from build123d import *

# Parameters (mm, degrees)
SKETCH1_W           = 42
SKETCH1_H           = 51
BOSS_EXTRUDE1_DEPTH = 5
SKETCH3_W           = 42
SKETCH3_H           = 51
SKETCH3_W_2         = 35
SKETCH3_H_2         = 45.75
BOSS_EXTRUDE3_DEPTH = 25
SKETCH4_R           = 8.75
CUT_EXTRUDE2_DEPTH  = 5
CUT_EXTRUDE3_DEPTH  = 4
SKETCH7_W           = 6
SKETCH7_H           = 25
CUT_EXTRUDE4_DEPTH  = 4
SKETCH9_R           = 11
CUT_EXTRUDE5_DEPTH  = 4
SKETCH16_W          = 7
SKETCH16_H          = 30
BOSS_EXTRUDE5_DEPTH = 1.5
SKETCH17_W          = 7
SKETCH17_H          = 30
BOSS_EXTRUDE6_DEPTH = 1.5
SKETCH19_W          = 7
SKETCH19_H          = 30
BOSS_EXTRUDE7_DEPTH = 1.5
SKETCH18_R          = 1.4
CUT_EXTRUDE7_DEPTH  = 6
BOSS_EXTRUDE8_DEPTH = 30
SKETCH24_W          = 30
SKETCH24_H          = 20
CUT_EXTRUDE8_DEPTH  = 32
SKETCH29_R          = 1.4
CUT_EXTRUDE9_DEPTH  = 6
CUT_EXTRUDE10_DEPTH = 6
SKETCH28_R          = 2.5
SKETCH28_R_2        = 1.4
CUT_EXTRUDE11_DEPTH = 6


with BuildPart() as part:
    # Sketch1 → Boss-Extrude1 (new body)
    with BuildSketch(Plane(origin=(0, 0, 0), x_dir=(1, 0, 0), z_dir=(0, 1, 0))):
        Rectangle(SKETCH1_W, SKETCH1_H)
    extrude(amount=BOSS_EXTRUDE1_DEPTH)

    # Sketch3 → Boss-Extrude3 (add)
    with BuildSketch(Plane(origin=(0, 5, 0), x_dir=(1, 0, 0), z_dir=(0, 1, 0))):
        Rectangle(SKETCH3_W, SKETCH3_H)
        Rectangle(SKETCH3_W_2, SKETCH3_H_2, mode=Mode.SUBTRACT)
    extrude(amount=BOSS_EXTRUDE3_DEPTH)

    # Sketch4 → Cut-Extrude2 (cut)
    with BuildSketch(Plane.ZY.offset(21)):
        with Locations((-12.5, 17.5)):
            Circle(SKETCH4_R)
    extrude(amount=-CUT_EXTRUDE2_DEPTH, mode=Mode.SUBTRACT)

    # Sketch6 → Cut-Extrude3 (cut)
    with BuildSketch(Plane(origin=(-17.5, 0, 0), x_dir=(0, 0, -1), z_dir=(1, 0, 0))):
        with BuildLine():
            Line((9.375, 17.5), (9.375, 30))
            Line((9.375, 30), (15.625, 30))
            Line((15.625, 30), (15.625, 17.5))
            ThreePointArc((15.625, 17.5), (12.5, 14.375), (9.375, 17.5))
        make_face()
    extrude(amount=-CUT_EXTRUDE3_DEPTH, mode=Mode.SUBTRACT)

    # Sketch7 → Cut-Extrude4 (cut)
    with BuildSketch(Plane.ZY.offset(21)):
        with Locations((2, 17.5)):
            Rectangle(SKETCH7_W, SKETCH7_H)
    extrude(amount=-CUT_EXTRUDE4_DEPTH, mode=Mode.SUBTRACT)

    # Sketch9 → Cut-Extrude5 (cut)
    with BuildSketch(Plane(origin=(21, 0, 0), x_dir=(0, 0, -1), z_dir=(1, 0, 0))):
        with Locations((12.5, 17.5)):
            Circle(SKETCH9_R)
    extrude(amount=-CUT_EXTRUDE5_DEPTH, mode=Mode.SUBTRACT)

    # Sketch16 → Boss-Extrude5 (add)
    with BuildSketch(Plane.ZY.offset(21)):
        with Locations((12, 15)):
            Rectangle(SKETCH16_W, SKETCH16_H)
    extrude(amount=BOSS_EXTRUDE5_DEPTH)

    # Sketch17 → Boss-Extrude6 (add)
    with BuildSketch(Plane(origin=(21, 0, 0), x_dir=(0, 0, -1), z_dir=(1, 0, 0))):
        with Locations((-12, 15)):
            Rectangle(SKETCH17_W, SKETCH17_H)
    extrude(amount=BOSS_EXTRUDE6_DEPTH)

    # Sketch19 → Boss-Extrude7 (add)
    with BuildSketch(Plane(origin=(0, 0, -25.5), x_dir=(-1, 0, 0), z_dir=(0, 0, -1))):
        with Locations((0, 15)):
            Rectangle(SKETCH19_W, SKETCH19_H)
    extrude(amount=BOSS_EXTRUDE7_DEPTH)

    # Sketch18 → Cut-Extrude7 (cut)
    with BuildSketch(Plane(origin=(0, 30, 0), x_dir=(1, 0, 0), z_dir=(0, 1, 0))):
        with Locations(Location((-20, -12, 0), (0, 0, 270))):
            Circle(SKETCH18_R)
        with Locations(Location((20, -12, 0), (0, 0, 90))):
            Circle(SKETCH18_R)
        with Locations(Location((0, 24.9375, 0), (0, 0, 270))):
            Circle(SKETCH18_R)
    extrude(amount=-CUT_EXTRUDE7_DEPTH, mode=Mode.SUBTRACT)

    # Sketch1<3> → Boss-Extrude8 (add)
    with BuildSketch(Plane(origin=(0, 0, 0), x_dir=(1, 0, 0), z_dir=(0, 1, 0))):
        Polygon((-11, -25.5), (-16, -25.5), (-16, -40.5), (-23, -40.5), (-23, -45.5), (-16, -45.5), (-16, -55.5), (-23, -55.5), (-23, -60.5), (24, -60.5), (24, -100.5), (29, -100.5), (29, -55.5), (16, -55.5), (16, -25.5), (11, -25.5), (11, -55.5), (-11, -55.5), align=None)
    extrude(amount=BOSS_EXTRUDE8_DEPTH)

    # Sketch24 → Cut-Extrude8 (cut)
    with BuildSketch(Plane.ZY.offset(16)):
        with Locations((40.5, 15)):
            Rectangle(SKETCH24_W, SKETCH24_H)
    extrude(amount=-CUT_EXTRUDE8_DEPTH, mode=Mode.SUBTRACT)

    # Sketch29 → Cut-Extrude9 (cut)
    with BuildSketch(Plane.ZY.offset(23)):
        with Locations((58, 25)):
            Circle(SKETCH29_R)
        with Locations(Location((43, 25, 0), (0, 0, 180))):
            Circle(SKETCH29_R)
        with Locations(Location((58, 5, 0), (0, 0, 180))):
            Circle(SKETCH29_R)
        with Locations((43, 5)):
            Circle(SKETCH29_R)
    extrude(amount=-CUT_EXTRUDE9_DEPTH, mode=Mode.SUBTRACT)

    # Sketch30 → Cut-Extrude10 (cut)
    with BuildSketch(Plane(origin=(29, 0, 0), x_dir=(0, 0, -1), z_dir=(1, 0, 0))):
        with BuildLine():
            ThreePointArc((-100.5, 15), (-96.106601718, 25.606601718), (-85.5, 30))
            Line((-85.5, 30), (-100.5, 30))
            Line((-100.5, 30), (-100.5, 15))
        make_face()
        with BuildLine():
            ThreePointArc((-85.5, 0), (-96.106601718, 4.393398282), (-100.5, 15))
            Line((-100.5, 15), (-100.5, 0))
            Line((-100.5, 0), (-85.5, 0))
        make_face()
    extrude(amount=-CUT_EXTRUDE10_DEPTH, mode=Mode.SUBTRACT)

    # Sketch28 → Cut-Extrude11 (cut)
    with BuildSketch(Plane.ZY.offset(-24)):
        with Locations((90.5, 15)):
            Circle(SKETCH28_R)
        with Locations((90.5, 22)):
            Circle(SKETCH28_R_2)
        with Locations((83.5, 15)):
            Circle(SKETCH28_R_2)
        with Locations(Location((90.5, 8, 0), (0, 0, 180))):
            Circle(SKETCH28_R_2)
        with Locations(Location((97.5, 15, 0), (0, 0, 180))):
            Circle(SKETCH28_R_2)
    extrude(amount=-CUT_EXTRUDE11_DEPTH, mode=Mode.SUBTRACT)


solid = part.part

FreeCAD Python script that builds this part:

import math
import FreeCAD as App
import Part
import Sketcher

V = App.Vector


def add_polygon(sketch, points):
    """Adds a closed chain of lines whose ends are joined by coincident constraints."""
    first, n = sketch.GeometryCount, len(points)
    for a, b in zip(points, points[1:] + points[:1]):
        sketch.addGeometry(Part.LineSegment(App.Vector(*a, 0), App.Vector(*b, 0)), False)
    for i in range(n):
        sketch.addConstraint(Sketcher.Constraint("Coincident", first + i, 2, first + (i + 1) % n, 1))

doc = App.newDocument("Part")
body = doc.addObject("PartDesign::Body", "Body")

# Sketch on XZ plane
sketch1 = body.newObject("Sketcher::SketchObject", "Sketch")
sketch1.AttachmentSupport = (doc.getObject("XZ_Plane"), [""])
sketch1.MapMode = "FlatFace"
add_polygon(sketch1, [(-21, -26), (-21, 26), (21, 26), (21, -26)])  # lines 0-3
sketch1.addConstraint(Sketcher.Constraint("Vertical", 0))
sketch1.addConstraint(Sketcher.Constraint("Horizontal", 1))
sketch1.addConstraint(Sketcher.Constraint("Vertical", 2))
sketch1.addConstraint(Sketcher.Constraint("Horizontal", 3))
sketch1.addConstraint(Sketcher.Constraint("Symmetric", 0, 2, 2, 2, -1, 1))
sketch1.addConstraint(Sketcher.Constraint("DistanceX", 1, 1, 1, 2, 42.0))
sketch1.addConstraint(Sketcher.Constraint("DistanceY", 0, 1, 0, 2, 51.0))
pad1 = body.newObject("PartDesign::Pad", "Pad")
pad1.Profile = sketch1
pad1.Length = 5
pad1.Reversed = True

# Sketch on XZ plane
sketch2 = body.newObject("Sketcher::SketchObject", "Sketch001")
sketch2.AttachmentSupport = (doc.getObject("XZ_Plane"), [""])
sketch2.MapMode = "FlatFace"
sketch2.AttachmentOffset = App.Placement(V(0, 0, -5), App.Rotation())
add_polygon(sketch2, [(-21, -26), (-21, 26), (21, 26), (21, -26)])  # lines 0-3
add_polygon(sketch2, [(18, 23), (-18, 23), (-18, -23), (18, -23)])  # lines 4-7
sketch2.addConstraint(Sketcher.Constraint("Vertical", 0))
sketch2.addConstraint(Sketcher.Constraint("Horizontal", 1))
sketch2.addConstraint(Sketcher.Constraint("Vertical", 2))
sketch2.addConstraint(Sketcher.Constraint("Horizontal", 3))
sketch2.addConstraint(Sketcher.Constraint("Horizontal", 4))
sketch2.addConstraint(Sketcher.Constraint("Vertical", 5))
sketch2.addConstraint(Sketcher.Constraint("Horizontal", 6))
sketch2.addConstraint(Sketcher.Constraint("Vertical", 7))
sketch2.addConstraint(Sketcher.Constraint("Symmetric", 0, 2, 2, 2, -1, 1))
sketch2.addConstraint(Sketcher.Constraint("Symmetric", 4, 2, 6, 2, -1, 1))
sketch2.addConstraint(Sketcher.Constraint("DistanceX", 1, 1, 1, 2, 42.0))
sketch2.addConstraint(Sketcher.Constraint("DistanceX", 4, 2, 4, 1, 35.0))
sketch2.addConstraint(Sketcher.Constraint("DistanceY", 0, 1, 0, 2, 51.0))
sketch2.addConstraint(Sketcher.Constraint("DistanceY", 5, 2, 5, 1, 45.75))
pad2 = body.newObject("PartDesign::Pad", "Pad001")
pad2.Profile = sketch2
pad2.Length = 25
pad2.Reversed = True

# Sketch on YZ plane
sketch3 = body.newObject("Sketcher::SketchObject", "Sketch002")
sketch3.AttachmentSupport = (doc.getObject("YZ_Plane"), [""])
sketch3.MapMode = "FlatFace"
sketch3.AttachmentOffset = App.Placement(V(0, 0, -21), App.Rotation())
sketch3.addGeometry(Part.Circle(V(18, -12, 0), V(0, 0, 1), 9), False)
sketch3.addConstraint(Sketcher.Constraint("Diameter", 0, 17.5))
sketch3.addConstraint(Sketcher.Constraint("DistanceX", -1, 1, 0, 3, 17.5))
sketch3.addConstraint(Sketcher.Constraint("DistanceY", 0, 3, -1, 1, 12.5))
pocket1 = body.newObject("PartDesign::Pocket", "Pocket")
pocket1.Profile = sketch3
pocket1.Length = 5
pocket1.Reversed = True

# Sketch on YZ plane
sketch4 = body.newObject("Sketcher::SketchObject", "Sketch003")
sketch4.AttachmentSupport = (doc.getObject("YZ_Plane"), [""])
sketch4.MapMode = "FlatFace"
sketch4.AttachmentOffset = App.Placement(V(0, 0, -17.5), App.Rotation())
sketch4.addGeometry(Part.LineSegment(V(30, -9.4, 0), V(17.5, -9.4, 0)), False)
sketch4.addGeometry(Part.ArcOfCircle(Part.Circle(V(17.5, -12.5, 0), V(0, 0, 1), 3.1), math.radians(90), math.radians(270)), False)
sketch4.addGeometry(Part.LineSegment(V(17.5, -15.6, 0), V(30, -15.6, 0)), False)
sketch4.addGeometry(Part.LineSegment(V(30, -15.6, 0), V(30, -9.4, 0)), False)
sketch4.addConstraint(Sketcher.Constraint("Tangent", 0, 2, 1, 1))
sketch4.addConstraint(Sketcher.Constraint("Tangent", 1, 2, 2, 1))
sketch4.addConstraint(Sketcher.Constraint("Coincident", 2, 2, 3, 1))
sketch4.addConstraint(Sketcher.Constraint("Coincident", 3, 2, 0, 1))
sketch4.addConstraint(Sketcher.Constraint("Horizontal", 0))
sketch4.addConstraint(Sketcher.Constraint("Horizontal", 2))
sketch4.addConstraint(Sketcher.Constraint("Vertical", 3))
sketch4.addConstraint(Sketcher.Constraint("DistanceX", 0, 2, 0, 1, 12.5))
sketch4.addConstraint(Sketcher.Constraint("DistanceX", -1, 1, 2, 2, 30.0))
sketch4.addConstraint(Sketcher.Constraint("Radius", 1, 3.125))
sketch4.addConstraint(Sketcher.Constraint("DistanceY", 1, 3, -1, 1, 12.5))
pocket2 = body.newObject("PartDesign::Pocket", "Pocket001")
pocket2.Profile = sketch4
pocket2.Length = 4

# Sketch on YZ plane
sketch5 = body.newObject("Sketcher::SketchObject", "Sketch004")
sketch5.AttachmentSupport = (doc.getObject("YZ_Plane"), [""])
sketch5.MapMode = "FlatFace"
sketch5.AttachmentOffset = App.Placement(V(0, 0, -21), App.Rotation())
add_polygon(sketch5, [(30, -1), (5, -1), (5, 5), (30, 5)])  # lines 0-3
sketch5.addConstraint(Sketcher.Constraint("Horizontal", 0))
sketch5.addConstraint(Sketcher.Constraint("Vertical", 1))
sketch5.addConstraint(Sketcher.Constraint("Horizontal", 2))
sketch5.addConstraint(Sketcher.Constraint("Vertical", 3))
sketch5.addConstraint(Sketcher.Constraint("DistanceX", 0, 2, 0, 1, 25.0))
sketch5.addConstraint(Sketcher.Constraint("DistanceY", 1, 1, 1, 2, 6.0))
sketch5.addConstraint(Sketcher.Constraint("DistanceX", -1, 1, 0, 2, 5.0))
sketch5.addConstraint(Sketcher.Constraint("DistanceY", 0, 2, -1, 1, 1.0))
pocket3 = body.newObject("PartDesign::Pocket", "Pocket002")
pocket3.Profile = sketch5
pocket3.Length = 4
pocket3.Reversed = True

# Sketch on YZ plane
sketch6 = body.newObject("Sketcher::SketchObject", "Sketch005")
sketch6.AttachmentSupport = (doc.getObject("YZ_Plane"), [""])
sketch6.MapMode = "FlatFace"
sketch6.AttachmentOffset = App.Placement(V(0, 0, 21), App.Rotation())
sketch6.addGeometry(Part.Circle(V(18, -12, 0), V(0, 0, 1), 11), False)
sketch6.addConstraint(Sketcher.Constraint("Diameter", 0, 22.0))
sketch6.addConstraint(Sketcher.Constraint("DistanceX", -1, 1, 0, 3, 17.5))
sketch6.addConstraint(Sketcher.Constraint("DistanceY", 0, 3, -1, 1, 12.5))
pocket4 = body.newObject("PartDesign::Pocket", "Pocket003")
pocket4.Profile = sketch6
pocket4.Length = 4

# Sketch on YZ plane
sketch7 = body.newObject("Sketcher::SketchObject", "Sketch006")
sketch7.AttachmentSupport = (doc.getObject("YZ_Plane"), [""])
sketch7.MapMode = "FlatFace"
sketch7.AttachmentOffset = App.Placement(V(0, 0, -21), App.Rotation())
add_polygon(sketch7, [(30, 8), (0, 8), (0, 16), (30, 16)])  # lines 0-3
sketch7.addConstraint(Sketcher.Constraint("Horizontal", 0))
sketch7.addConstraint(Sketcher.Constraint("Vertical", 1))
sketch7.addConstraint(Sketcher.Constraint("Horizontal", 2))
sketch7.addConstraint(Sketcher.Constraint("Vertical", 3))
sketch7.addConstraint(Sketcher.Constraint("PointOnObject", 0, 2, -2))
sketch7.addConstraint(Sketcher.Constraint("DistanceX", 0, 2, 0, 1, 30.0))
sketch7.addConstraint(Sketcher.Constraint("DistanceY", 1, 1, 1, 2, 7.0))
sketch7.addConstraint(Sketcher.Constraint("DistanceY", -1, 1, 0, 2, 8.5))
pad3 = body.newObject("PartDesign::Pad", "Pad002")
pad3.Profile = sketch7
pad3.Length = 1.5
pad3.Reversed = True

# Sketch on YZ plane
sketch8 = body.newObject("Sketcher::SketchObject", "Sketch007")
sketch8.AttachmentSupport = (doc.getObject("YZ_Plane"), [""])
sketch8.MapMode = "FlatFace"
sketch8.AttachmentOffset = App.Placement(V(0, 0, 21), App.Rotation())
add_polygon(sketch8, [(30, 16), (0, 16), (0, 8), (30, 8)])  # lines 0-3
sketch8.addConstraint(Sketcher.Constraint("Horizontal", 0))
sketch8.addConstraint(Sketcher.Constraint("Vertical", 1))
sketch8.addConstraint(Sketcher.Constraint("Horizontal", 2))
sketch8.addConstraint(Sketcher.Constraint("Vertical", 3))
sketch8.addConstraint(Sketcher.Constraint("PointOnObject", 0, 2, -2))
sketch8.addConstraint(Sketcher.Constraint("DistanceX", 0, 2, 0, 1, 30.0))
sketch8.addConstraint(Sketcher.Constraint("DistanceY", 1, 2, 1, 1, 7.0))
sketch8.addConstraint(Sketcher.Constraint("DistanceY", -1, 1, 0, 2, 15.5))
pad4 = body.newObject("PartDesign::Pad", "Pad003")
pad4.Profile = sketch8
pad4.Length = 1.5

# Sketch on XY plane
sketch9 = body.newObject("Sketcher::SketchObject", "Sketch008")
sketch9.AttachmentSupport = (doc.getObject("XY_Plane"), [""])
sketch9.MapMode = "FlatFace"
sketch9.AttachmentOffset = App.Placement(V(0, 0, -25.5), App.Rotation())
add_polygon(sketch9, [(4, 30), (4, 0), (-4, 0), (-4, 30)])  # lines 0-3
sketch9.addConstraint(Sketcher.Constraint("Vertical", 0))
sketch9.addConstraint(Sketcher.Constraint("Horizontal", 1))
sketch9.addConstraint(Sketcher.Constraint("Vertical", 2))
sketch9.addConstraint(Sketcher.Constraint("Horizontal", 3))
sketch9.addConstraint(Sketcher.Constraint("Symmetric", 0, 2, 1, 2, -1, 1))
sketch9.addConstraint(Sketcher.Constraint("DistanceX", 1, 2, 1, 1, 7.0))
sketch9.addConstraint(Sketcher.Constraint("DistanceY", 0, 2, 0, 1, 30.0))
pad5 = body.newObject("PartDesign::Pad", "Pad004")
pad5.Profile = sketch9
pad5.Length = 1.5
pad5.Reversed = True

# Sketch on XZ plane
sketch10 = body.newObject("Sketcher::SketchObject", "Sketch009")
sketch10.AttachmentSupport = (doc.getObject("XZ_Plane"), [""])
sketch10.MapMode = "FlatFace"
sketch10.AttachmentOffset = App.Placement(V(0, 0, -30), App.Rotation())
sketch10.addGeometry(Part.Circle(V(-20, 12, 0), V(0, 0, 1), 1.4), False)
sketch10.addGeometry(Part.Circle(V(20, 12, 0), V(0, 0, 1), 1.4), False)
sketch10.addGeometry(Part.Circle(V(0, -24.9, 0), V(0, 0, 1), 1.4), False)
sketch10.addConstraint(Sketcher.Constraint("Equal", 0, 1))
sketch10.addConstraint(Sketcher.Constraint("Equal", 1, 2))
sketch10.addConstraint(Sketcher.Constraint("Symmetric", 0, 3, 1, 3, -2))
sketch10.addConstraint(Sketcher.Constraint("PointOnObject", 2, 3, -2))
sketch10.addConstraint(Sketcher.Constraint("Diameter", 0, 2.8))
sketch10.addConstraint(Sketcher.Constraint("DistanceX", 0, 3, -1, 1, 20.0))
sketch10.addConstraint(Sketcher.Constraint("DistanceY", -1, 1, 0, 3, 12.0))
sketch10.addConstraint(Sketcher.Constraint("DistanceY", 2, 3, -1, 1, 24.9375))
pocket5 = body.newObject("PartDesign::Pocket", "Pocket004")
pocket5.Profile = sketch10
pocket5.Length = 6
pocket5.Reversed = True

# Sketch on XZ plane
sketch11 = body.newObject("Sketcher::SketchObject", "Sketch010")
sketch11.AttachmentSupport = (doc.getObject("XZ_Plane"), [""])
sketch11.MapMode = "FlatFace"
add_polygon(sketch11, [(-11, 26), (-16, 26), (-16, 40), (-23, 40), (-23, 46), (-16, 46), (-16, 56), (-23, 56), (-23, 60), (24, 60), (24, 100), (29, 100), (29, 56), (16, 56), (16, 26), (11, 26), (11, 56), (-11, 56)])  # lines 0-17
sketch11.addConstraint(Sketcher.Constraint("Horizontal", 0))
sketch11.addConstraint(Sketcher.Constraint("Vertical", 1))
sketch11.addConstraint(Sketcher.Constraint("Horizontal", 2))
sketch11.addConstraint(Sketcher.Constraint("Vertical", 3))
sketch11.addConstraint(Sketcher.Constraint("Horizontal", 4))
sketch11.addConstraint(Sketcher.Constraint("Vertical", 5))
sketch11.addConstraint(Sketcher.Constraint("Horizontal", 6))
sketch11.addConstraint(Sketcher.Constraint("Vertical", 7))
sketch11.addConstraint(Sketcher.Constraint("Horizontal", 8))
sketch11.addConstraint(Sketcher.Constraint("Vertical", 9))
sketch11.addConstraint(Sketcher.Constraint("Horizontal", 10))
sketch11.addConstraint(Sketcher.Constraint("Vertical", 11))
sketch11.addConstraint(Sketcher.Constraint("Horizontal", 12))
sketch11.addConstraint(Sketcher.Constraint("Vertical", 13))
sketch11.addConstraint(Sketcher.Constraint("Horizontal", 14))
sketch11.addConstraint(Sketcher.Constraint("Vertical", 15))
sketch11.addConstraint(Sketcher.Constraint("Horizontal", 16))
sketch11.addConstraint(Sketcher.Constraint("Vertical", 17))
sketch11.addConstraint(Sketcher.Constraint("Symmetric", 5, 2, 12, 2, -2))
sketch11.addConstraint(Sketcher.Constraint("Symmetric", 0, 2, 13, 2, -2))
sketch11.addConstraint(Sketcher.Constraint("Horizontal", 12, 2, 15, 2))
sketch11.addConstraint(Sketcher.Constraint("Vertical", 3, 2, 6, 2))
sketch11.addConstraint(Sketcher.Constraint("Equal", 0, 10))
sketch11.addConstraint(Sketcher.Constraint("Equal", 10, 14))
sketch11.addConstraint(Sketcher.Constraint("Equal", 14, 3))
sketch11.addConstraint(Sketcher.Constraint("Equal", 3, 7))
sketch11.addConstraint(Sketcher.Constraint("DistanceX", 0, 2, 0, 1, 5.0))
sketch11.addConstraint(Sketcher.Constraint("DistanceX", 2, 2, 2, 1, 7.0))
sketch11.addConstraint(Sketcher.Constraint("DistanceX", 8, 1, 8, 2, 47.0))
sketch11.addConstraint(Sketcher.Constraint("DistanceX", 12, 2, 12, 1, 13.0))
sketch11.addConstraint(Sketcher.Constraint("DistanceY", 1, 1, 1, 2, 15.0))
sketch11.addConstraint(Sketcher.Constraint("DistanceY", 5, 1, 5, 2, 10.0))
sketch11.addConstraint(Sketcher.Constraint("DistanceY", 9, 1, 9, 2, 40.0))
sketch11.addConstraint(Sketcher.Constraint("DistanceY", -1, 1, 0, 2, 25.5))
pad6 = body.newObject("PartDesign::Pad", "Pad005")
pad6.Profile = sketch11
pad6.Length = 30
pad6.Reversed = True

# Sketch on YZ plane
sketch12 = body.newObject("Sketcher::SketchObject", "Sketch011")
sketch12.AttachmentSupport = (doc.getObject("YZ_Plane"), [""])
sketch12.MapMode = "FlatFace"
sketch12.AttachmentOffset = App.Placement(V(0, 0, -16), App.Rotation())
add_polygon(sketch12, [(25, 26), (5, 26), (5, 56), (25, 56)])  # lines 0-3
sketch12.addConstraint(Sketcher.Constraint("Horizontal", 0))
sketch12.addConstraint(Sketcher.Constraint("Vertical", 1))
sketch12.addConstraint(Sketcher.Constraint("Horizontal", 2))
sketch12.addConstraint(Sketcher.Constraint("Vertical", 3))
sketch12.addConstraint(Sketcher.Constraint("DistanceX", 0, 2, 0, 1, 20.0))
sketch12.addConstraint(Sketcher.Constraint("DistanceY", 1, 1, 1, 2, 30.0))
sketch12.addConstraint(Sketcher.Constraint("DistanceX", -1, 1, 0, 2, 5.0))
sketch12.addConstraint(Sketcher.Constraint("DistanceY", -1, 1, 0, 2, 25.5))
pocket6 = body.newObject("PartDesign::Pocket", "Pocket005")
pocket6.Profile = sketch12
pocket6.Length = 32
pocket6.Reversed = True

# Sketch on YZ plane
sketch13 = body.newObject("Sketcher::SketchObject", "Sketch012")
sketch13.AttachmentSupport = (doc.getObject("YZ_Plane"), [""])
sketch13.MapMode = "FlatFace"
sketch13.AttachmentOffset = App.Placement(V(0, 0, -23), App.Rotation())
sketch13.addGeometry(Part.Circle(V(25, 58, 0), V(0, 0, 1), 1.4), False)
sketch13.addGeometry(Part.Circle(V(25, 43, 0), V(0, 0, 1), 1.4), False)
sketch13.addGeometry(Part.Circle(V(5, 58, 0), V(0, 0, 1), 1.4), False)
sketch13.addGeometry(Part.Circle(V(5, 43, 0), V(0, 0, 1), 1.4), False)
sketch13.addConstraint(Sketcher.Constraint("Equal", 0, 1))
sketch13.addConstraint(Sketcher.Constraint("Equal", 1, 2))
sketch13.addConstraint(Sketcher.Constraint("Equal", 2, 3))
sketch13.addConstraint(Sketcher.Constraint("Horizontal", 0, 3, 2, 3))
sketch13.addConstraint(Sketcher.Constraint("Horizontal", 1, 3, 3, 3))
sketch13.addConstraint(Sketcher.Constraint("Vertical", 0, 3, 1, 3))
sketch13.addConstraint(Sketcher.Constraint("Vertical", 2, 3, 3, 3))
sketch13.addConstraint(Sketcher.Constraint("Diameter", 0, 2.8))
sketch13.addConstraint(Sketcher.Constraint("DistanceX", -1, 1, 0, 3, 25.0))
sketch13.addConstraint(Sketcher.Constraint("DistanceY", -1, 1, 0, 3, 58.0))
sketch13.addConstraint(Sketcher.Constraint("DistanceY", -1, 1, 1, 3, 43.0))
sketch13.addConstraint(Sketcher.Constraint("DistanceX", -1, 1, 2, 3, 5.0))
pocket7 = body.newObject("PartDesign::Pocket", "Pocket006")
pocket7.Profile = sketch13
pocket7.Length = 6
pocket7.Reversed = True

# Sketch on YZ plane
sketch14 = body.newObject("Sketcher::SketchObject", "Sketch013")
sketch14.AttachmentSupport = (doc.getObject("YZ_Plane"), [""])
sketch14.MapMode = "FlatFace"
sketch14.AttachmentOffset = App.Placement(V(0, 0, 29), App.Rotation())
sketch14.addGeometry(Part.ArcOfCircle(Part.Circle(V(15, 86, 0), V(0, 0, 1), 15), math.radians(0), math.radians(90)), False)
sketch14.addGeometry(Part.LineSegment(V(30, 86, 0), V(30, 100, 0)), False)
sketch14.addGeometry(Part.LineSegment(V(30, 100, 0), V(15, 100, 0)), False)
sketch14.addGeometry(Part.ArcOfCircle(Part.Circle(V(15, 86, 0), V(0, 0, 1), 15), math.radians(90), math.radians(180)), False)
sketch14.addGeometry(Part.LineSegment(V(15, 100, 0), V(0, 100, 0)), False)
sketch14.addGeometry(Part.LineSegment(V(0, 100, 0), V(0, 86, 0)), False)
sketch14.addConstraint(Sketcher.Constraint("Tangent", 0, 1, 1, 1))
sketch14.addConstraint(Sketcher.Constraint("Coincident", 1, 2, 2, 1))
sketch14.addConstraint(Sketcher.Constraint("Tangent", 2, 2, 0, 2))
sketch14.addConstraint(Sketcher.Constraint("Tangent", 3, 1, 4, 1))
sketch14.addConstraint(Sketcher.Constraint("Coincident", 4, 2, 5, 1))
sketch14.addConstraint(Sketcher.Constraint("Tangent", 5, 2, 3, 2))
sketch14.addConstraint(Sketcher.Constraint("Vertical", 1))
sketch14.addConstraint(Sketcher.Constraint("Horizontal", 2))
sketch14.addConstraint(Sketcher.Constraint("Horizontal", 4))
sketch14.addConstraint(Sketcher.Constraint("Vertical", 5))
sketch14.addConstraint(Sketcher.Constraint("Coincident", 3, 3, 0, 3))
sketch14.addConstraint(Sketcher.Constraint("Equal", 0, 3))
sketch14.addConstraint(Sketcher.Constraint("PointOnObject", 4, 2, -2))
sketch14.addConstraint(Sketcher.Constraint("Radius", 0, 15.0))
sketch14.addConstraint(Sketcher.Constraint("DistanceY", -1, 1, 0, 3, 85.5))
pocket8 = body.newObject("PartDesign::Pocket", "Pocket007")
pocket8.Profile = sketch14
pocket8.Length = 6

# Sketch on YZ plane
sketch15 = body.newObject("Sketcher::SketchObject", "Sketch014")
sketch15.AttachmentSupport = (doc.getObject("YZ_Plane"), [""])
sketch15.MapMode = "FlatFace"
sketch15.AttachmentOffset = App.Placement(V(0, 0, 24), App.Rotation())
sketch15.addGeometry(Part.Circle(V(15, 90.5, 0), V(0, 0, 1), 2.5), False)
sketch15.addGeometry(Part.Circle(V(22, 90.5, 0), V(0, 0, 1), 1.4), False)
sketch15.addGeometry(Part.Circle(V(15, 83.5, 0), V(0, 0, 1), 1.4), False)
sketch15.addGeometry(Part.Circle(V(8, 90.5, 0), V(0, 0, 1), 1.4), False)
sketch15.addGeometry(Part.Circle(V(15, 97.5, 0), V(0, 0, 1), 1.4), False)
sketch15.addConstraint(Sketcher.Constraint("Equal", 1, 2))
sketch15.addConstraint(Sketcher.Constraint("Equal", 2, 3))
sketch15.addConstraint(Sketcher.Constraint("Equal", 3, 4))
sketch15.addConstraint(Sketcher.Constraint("Horizontal", 0, 3, 1, 3))
sketch15.addConstraint(Sketcher.Constraint("Horizontal", 1, 3, 3, 3))
sketch15.addConstraint(Sketcher.Constraint("Vertical", 0, 3, 2, 3))
sketch15.addConstraint(Sketcher.Constraint("Vertical", 2, 3, 4, 3))
sketch15.addConstraint(Sketcher.Constraint("Diameter", 0, 5.0))
sketch15.addConstraint(Sketcher.Constraint("Diameter", 1, 2.8))
sketch15.addConstraint(Sketcher.Constraint("DistanceX", -1, 1, 0, 3, 15.0))
sketch15.addConstraint(Sketcher.Constraint("DistanceX", -1, 1, 1, 3, 22.0))
sketch15.addConstraint(Sketcher.Constraint("DistanceX", -1, 1, 3, 3, 8.0))
sketch15.addConstraint(Sketcher.Constraint("DistanceY", 2, 3, 0, 3, 7.0))
sketch15.addConstraint(Sketcher.Constraint("DistanceY", 0, 3, 4, 3, 7.0))
sketch15.addConstraint(Sketcher.Constraint("DistanceY", -1, 1, 0, 3, 90.5))
pocket9 = body.newObject("PartDesign::Pocket", "Pocket008")
pocket9.Profile = sketch15
pocket9.Length = 6
pocket9.Reversed = True

doc.recompute()
